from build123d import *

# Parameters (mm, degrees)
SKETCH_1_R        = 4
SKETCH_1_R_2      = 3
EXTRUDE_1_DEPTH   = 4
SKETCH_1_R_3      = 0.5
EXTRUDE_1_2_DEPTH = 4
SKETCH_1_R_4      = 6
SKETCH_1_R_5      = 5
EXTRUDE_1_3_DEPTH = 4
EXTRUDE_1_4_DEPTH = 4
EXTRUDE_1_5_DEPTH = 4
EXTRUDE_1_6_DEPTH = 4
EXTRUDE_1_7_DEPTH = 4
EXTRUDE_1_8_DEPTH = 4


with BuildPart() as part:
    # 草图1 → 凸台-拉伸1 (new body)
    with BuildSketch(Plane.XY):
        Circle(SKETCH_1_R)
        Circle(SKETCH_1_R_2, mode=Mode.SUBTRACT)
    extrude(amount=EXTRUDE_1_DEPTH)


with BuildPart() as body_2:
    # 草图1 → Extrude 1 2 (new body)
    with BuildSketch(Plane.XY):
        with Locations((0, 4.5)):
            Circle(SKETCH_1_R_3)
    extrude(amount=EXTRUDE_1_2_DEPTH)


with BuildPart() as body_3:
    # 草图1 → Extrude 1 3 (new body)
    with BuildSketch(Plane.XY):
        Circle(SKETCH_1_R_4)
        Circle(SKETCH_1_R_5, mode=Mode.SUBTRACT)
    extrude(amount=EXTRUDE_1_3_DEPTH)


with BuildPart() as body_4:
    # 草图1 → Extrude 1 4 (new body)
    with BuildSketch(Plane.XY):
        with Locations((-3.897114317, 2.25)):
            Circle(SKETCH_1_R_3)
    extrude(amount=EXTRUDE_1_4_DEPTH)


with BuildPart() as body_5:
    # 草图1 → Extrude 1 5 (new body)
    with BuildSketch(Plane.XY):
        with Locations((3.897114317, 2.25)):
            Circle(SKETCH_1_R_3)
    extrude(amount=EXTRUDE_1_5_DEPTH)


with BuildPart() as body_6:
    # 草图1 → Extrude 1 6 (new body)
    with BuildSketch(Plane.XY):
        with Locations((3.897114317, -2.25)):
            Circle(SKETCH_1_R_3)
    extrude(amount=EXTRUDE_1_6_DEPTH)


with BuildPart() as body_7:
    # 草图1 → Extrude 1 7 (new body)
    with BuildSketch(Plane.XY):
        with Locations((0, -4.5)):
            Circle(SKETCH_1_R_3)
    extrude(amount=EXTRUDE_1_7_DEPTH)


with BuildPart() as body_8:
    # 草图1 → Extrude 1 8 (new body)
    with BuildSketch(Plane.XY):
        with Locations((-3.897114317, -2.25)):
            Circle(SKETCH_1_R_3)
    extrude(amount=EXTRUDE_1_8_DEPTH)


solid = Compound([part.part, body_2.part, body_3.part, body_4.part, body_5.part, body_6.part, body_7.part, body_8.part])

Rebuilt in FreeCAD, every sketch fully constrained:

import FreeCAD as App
import Part
import Sketcher

V = App.Vector

doc = App.newDocument("Part")
body = doc.addObject("PartDesign::Body", "Body")

sketch1 = body.newObject("Sketcher::SketchObject", "Sketch")
sketch1.AttachmentSupport = (doc.getObject("XY_Plane"), [""])
sketch1.MapMode = "FlatFace"
sketch1.addGeometry([
    Part.Circle(V(0, 0, 0), V(0, 0, 1), 4),
    Part.Circle(V(0, 0, 0), V(0, 0, 1), 3),
], False)
sketch1.addConstraint([
    Sketcher.Constraint("Coincident", 0, 3, -1, 1),
    Sketcher.Constraint("Coincident", 1, 3, -1, 1),
    Sketcher.Constraint("Diameter", 0, 8.0),
    Sketcher.Constraint("Diameter", 1, 6.0),
])
pad1 = body.newObject("PartDesign::Pad", "Pad")
pad1.Profile = sketch1
pad1.Length = 4
body2 = doc.addObject("PartDesign::Body", "Body001")

sketch2 = body2.newObject("Sketcher::SketchObject", "Sketch001")
sketch2.AttachmentSupport = (doc.getObject("XY_Plane001"), [""])
sketch2.MapMode = "FlatFace"
sketch2.addGeometry(Part.Circle(V(0, 4.5, 0), V(0, 0, 1), 0.5), False)
sketch2.addConstraint([
    Sketcher.Constraint("PointOnObject", 0, 3, -2),
    Sketcher.Constraint("Diameter", 0, 1.0),
    Sketcher.Constraint("DistanceY", -1, 1, 0, 3, 4.5),
])
pad2 = body2.newObject("PartDesign::Pad", "Pad001")
pad2.Profile = sketch2
pad2.Length = 4
body3 = doc.addObject("PartDesign::Body", "Body002")

sketch3 = body3.newObject("Sketcher::SketchObject", "Sketch002")
sketch3.AttachmentSupport = (doc.getObject("XY_Plane002"), [""])
sketch3.MapMode = "FlatFace"
sketch3.addGeometry([
    Part.Circle(V(0, 0, 0), V(0, 0, 1), 6),
    Part.Circle(V(0, 0, 0), V(0, 0, 1), 5),
], False)
sketch3.addConstraint([
    Sketcher.Constraint("Coincident", 0, 3, -1, 1),
    Sketcher.Constraint("Coincident", 1, 3, -1, 1),
    Sketcher.Constraint("Diameter", 0, 12.0),
    Sketcher.Constraint("Diameter", 1, 10.0),
])
pad3 = body3.newObject("PartDesign::Pad", "Pad002")
pad3.Profile = sketch3
pad3.Length = 4
body4 = doc.addObject("PartDesign::Body", "Body003")

sketch4 = body4.newObject("Sketcher::SketchObject", "Sketch003")
sketch4.AttachmentSupport = (doc.getObject("XY_Plane003"), [""])
sketch4.MapMode = "FlatFace"
sketch4.addGeometry(Part.Circle(V(-3.9, 2.2, 0), V(0, 0, 1), 0.5), False)
sketch4.addConstraint([
    Sketcher.Constraint("Diameter", 0, 1.0),
    Sketcher.Constraint("DistanceY", -1, 1, 0, 3, 2.25),
    Sketcher.Constraint("DistanceX", 0, 3, -1, 1, 3.897114),
])
pad4 = body4.newObject("PartDesign::Pad", "Pad003")
pad4.Profile = sketch4
pad4.Length = 4
body5 = doc.addObject("PartDesign::Body", "Body004")

sketch5 = body5.newObject("Sketcher::SketchObject", "Sketch004")
sketch5.AttachmentSupport = (doc.getObject("XY_Plane004"), [""])
sketch5.MapMode = "FlatFace"
sketch5.addGeometry(Part.Circle(V(3.9, 2.2, 0), V(0, 0, 1), 0.5), False)
sketch5.addConstraint([
    Sketcher.Constraint("Diameter", 0, 1.0),
    Sketcher.Constraint("DistanceY", -1, 1, 0, 3, 2.25),
    Sketcher.Constraint("DistanceX", -1, 1, 0, 3, 3.897114),
])
pad5 = body5.newObject("PartDesign::Pad", "Pad004")
pad5.Profile = sketch5
pad5.Length = 4
body6 = doc.addObject("PartDesign::Body", "Body005")

sketch6 = body6.newObject("Sketcher::SketchObject", "Sketch005")
sketch6.AttachmentSupport = (doc.getObject("XY_Plane005"), [""])
sketch6.MapMode = "FlatFace"
sketch6.addGeometry(Part.Circle(V(3.9, -2.2, 0), V(0, 0, 1), 0.5), False)
sketch6.addConstraint([
    Sketcher.Constraint("Diameter", 0, 1.0),
    Sketcher.Constraint("DistanceY", 0, 3, -1, 1, 2.25),
    Sketcher.Constraint("DistanceX", -1, 1, 0, 3, 3.897114),
])
pad6 = body6.newObject("PartDesign::Pad", "Pad005")
pad6.Profile = sketch6
pad6.Length = 4
body7 = doc.addObject("PartDesign::Body", "Body006")

sketch7 = body7.newObject("Sketcher::SketchObject", "Sketch006")
sketch7.AttachmentSupport = (doc.getObject("XY_Plane006"), [""])
sketch7.MapMode = "FlatFace"
sketch7.addGeometry(Part.Circle(V(0, -4.5, 0), V(0, 0, 1), 0.5), False)
sketch7.addConstraint([
    Sketcher.Constraint("PointOnObject", 0, 3, -2),
    Sketcher.Constraint("Diameter", 0, 1.0),
    Sketcher.Constraint("DistanceY", 0, 3, -1, 1, 4.5),
])
pad7 = body7.newObject("PartDesign::Pad", "Pad006")
pad7.Profile = sketch7
pad7.Length = 4
body8 = doc.addObject("PartDesign::Body", "Body007")

sketch8 = body8.newObject("Sketcher::SketchObject", "Sketch007")
sketch8.AttachmentSupport = (doc.getObject("XY_Plane007"), [""])
sketch8.MapMode = "FlatFace"
sketch8.addGeometry(Part.Circle(V(-3.9, -2.2, 0), V(0, 0, 1), 0.5), False)
sketch8.addConstraint([
    Sketcher.Constraint("Diameter", 0, 1.0),
    Sketcher.Constraint("DistanceY", 0, 3, -1, 1, 2.25),
    Sketcher.Constraint("DistanceX", 0, 3, -1, 1, 3.897114),
])
pad8 = body8.newObject("PartDesign::Pad", "Pad007")
pad8.Profile = sketch8
pad8.Length = 4

doc.recompute()
